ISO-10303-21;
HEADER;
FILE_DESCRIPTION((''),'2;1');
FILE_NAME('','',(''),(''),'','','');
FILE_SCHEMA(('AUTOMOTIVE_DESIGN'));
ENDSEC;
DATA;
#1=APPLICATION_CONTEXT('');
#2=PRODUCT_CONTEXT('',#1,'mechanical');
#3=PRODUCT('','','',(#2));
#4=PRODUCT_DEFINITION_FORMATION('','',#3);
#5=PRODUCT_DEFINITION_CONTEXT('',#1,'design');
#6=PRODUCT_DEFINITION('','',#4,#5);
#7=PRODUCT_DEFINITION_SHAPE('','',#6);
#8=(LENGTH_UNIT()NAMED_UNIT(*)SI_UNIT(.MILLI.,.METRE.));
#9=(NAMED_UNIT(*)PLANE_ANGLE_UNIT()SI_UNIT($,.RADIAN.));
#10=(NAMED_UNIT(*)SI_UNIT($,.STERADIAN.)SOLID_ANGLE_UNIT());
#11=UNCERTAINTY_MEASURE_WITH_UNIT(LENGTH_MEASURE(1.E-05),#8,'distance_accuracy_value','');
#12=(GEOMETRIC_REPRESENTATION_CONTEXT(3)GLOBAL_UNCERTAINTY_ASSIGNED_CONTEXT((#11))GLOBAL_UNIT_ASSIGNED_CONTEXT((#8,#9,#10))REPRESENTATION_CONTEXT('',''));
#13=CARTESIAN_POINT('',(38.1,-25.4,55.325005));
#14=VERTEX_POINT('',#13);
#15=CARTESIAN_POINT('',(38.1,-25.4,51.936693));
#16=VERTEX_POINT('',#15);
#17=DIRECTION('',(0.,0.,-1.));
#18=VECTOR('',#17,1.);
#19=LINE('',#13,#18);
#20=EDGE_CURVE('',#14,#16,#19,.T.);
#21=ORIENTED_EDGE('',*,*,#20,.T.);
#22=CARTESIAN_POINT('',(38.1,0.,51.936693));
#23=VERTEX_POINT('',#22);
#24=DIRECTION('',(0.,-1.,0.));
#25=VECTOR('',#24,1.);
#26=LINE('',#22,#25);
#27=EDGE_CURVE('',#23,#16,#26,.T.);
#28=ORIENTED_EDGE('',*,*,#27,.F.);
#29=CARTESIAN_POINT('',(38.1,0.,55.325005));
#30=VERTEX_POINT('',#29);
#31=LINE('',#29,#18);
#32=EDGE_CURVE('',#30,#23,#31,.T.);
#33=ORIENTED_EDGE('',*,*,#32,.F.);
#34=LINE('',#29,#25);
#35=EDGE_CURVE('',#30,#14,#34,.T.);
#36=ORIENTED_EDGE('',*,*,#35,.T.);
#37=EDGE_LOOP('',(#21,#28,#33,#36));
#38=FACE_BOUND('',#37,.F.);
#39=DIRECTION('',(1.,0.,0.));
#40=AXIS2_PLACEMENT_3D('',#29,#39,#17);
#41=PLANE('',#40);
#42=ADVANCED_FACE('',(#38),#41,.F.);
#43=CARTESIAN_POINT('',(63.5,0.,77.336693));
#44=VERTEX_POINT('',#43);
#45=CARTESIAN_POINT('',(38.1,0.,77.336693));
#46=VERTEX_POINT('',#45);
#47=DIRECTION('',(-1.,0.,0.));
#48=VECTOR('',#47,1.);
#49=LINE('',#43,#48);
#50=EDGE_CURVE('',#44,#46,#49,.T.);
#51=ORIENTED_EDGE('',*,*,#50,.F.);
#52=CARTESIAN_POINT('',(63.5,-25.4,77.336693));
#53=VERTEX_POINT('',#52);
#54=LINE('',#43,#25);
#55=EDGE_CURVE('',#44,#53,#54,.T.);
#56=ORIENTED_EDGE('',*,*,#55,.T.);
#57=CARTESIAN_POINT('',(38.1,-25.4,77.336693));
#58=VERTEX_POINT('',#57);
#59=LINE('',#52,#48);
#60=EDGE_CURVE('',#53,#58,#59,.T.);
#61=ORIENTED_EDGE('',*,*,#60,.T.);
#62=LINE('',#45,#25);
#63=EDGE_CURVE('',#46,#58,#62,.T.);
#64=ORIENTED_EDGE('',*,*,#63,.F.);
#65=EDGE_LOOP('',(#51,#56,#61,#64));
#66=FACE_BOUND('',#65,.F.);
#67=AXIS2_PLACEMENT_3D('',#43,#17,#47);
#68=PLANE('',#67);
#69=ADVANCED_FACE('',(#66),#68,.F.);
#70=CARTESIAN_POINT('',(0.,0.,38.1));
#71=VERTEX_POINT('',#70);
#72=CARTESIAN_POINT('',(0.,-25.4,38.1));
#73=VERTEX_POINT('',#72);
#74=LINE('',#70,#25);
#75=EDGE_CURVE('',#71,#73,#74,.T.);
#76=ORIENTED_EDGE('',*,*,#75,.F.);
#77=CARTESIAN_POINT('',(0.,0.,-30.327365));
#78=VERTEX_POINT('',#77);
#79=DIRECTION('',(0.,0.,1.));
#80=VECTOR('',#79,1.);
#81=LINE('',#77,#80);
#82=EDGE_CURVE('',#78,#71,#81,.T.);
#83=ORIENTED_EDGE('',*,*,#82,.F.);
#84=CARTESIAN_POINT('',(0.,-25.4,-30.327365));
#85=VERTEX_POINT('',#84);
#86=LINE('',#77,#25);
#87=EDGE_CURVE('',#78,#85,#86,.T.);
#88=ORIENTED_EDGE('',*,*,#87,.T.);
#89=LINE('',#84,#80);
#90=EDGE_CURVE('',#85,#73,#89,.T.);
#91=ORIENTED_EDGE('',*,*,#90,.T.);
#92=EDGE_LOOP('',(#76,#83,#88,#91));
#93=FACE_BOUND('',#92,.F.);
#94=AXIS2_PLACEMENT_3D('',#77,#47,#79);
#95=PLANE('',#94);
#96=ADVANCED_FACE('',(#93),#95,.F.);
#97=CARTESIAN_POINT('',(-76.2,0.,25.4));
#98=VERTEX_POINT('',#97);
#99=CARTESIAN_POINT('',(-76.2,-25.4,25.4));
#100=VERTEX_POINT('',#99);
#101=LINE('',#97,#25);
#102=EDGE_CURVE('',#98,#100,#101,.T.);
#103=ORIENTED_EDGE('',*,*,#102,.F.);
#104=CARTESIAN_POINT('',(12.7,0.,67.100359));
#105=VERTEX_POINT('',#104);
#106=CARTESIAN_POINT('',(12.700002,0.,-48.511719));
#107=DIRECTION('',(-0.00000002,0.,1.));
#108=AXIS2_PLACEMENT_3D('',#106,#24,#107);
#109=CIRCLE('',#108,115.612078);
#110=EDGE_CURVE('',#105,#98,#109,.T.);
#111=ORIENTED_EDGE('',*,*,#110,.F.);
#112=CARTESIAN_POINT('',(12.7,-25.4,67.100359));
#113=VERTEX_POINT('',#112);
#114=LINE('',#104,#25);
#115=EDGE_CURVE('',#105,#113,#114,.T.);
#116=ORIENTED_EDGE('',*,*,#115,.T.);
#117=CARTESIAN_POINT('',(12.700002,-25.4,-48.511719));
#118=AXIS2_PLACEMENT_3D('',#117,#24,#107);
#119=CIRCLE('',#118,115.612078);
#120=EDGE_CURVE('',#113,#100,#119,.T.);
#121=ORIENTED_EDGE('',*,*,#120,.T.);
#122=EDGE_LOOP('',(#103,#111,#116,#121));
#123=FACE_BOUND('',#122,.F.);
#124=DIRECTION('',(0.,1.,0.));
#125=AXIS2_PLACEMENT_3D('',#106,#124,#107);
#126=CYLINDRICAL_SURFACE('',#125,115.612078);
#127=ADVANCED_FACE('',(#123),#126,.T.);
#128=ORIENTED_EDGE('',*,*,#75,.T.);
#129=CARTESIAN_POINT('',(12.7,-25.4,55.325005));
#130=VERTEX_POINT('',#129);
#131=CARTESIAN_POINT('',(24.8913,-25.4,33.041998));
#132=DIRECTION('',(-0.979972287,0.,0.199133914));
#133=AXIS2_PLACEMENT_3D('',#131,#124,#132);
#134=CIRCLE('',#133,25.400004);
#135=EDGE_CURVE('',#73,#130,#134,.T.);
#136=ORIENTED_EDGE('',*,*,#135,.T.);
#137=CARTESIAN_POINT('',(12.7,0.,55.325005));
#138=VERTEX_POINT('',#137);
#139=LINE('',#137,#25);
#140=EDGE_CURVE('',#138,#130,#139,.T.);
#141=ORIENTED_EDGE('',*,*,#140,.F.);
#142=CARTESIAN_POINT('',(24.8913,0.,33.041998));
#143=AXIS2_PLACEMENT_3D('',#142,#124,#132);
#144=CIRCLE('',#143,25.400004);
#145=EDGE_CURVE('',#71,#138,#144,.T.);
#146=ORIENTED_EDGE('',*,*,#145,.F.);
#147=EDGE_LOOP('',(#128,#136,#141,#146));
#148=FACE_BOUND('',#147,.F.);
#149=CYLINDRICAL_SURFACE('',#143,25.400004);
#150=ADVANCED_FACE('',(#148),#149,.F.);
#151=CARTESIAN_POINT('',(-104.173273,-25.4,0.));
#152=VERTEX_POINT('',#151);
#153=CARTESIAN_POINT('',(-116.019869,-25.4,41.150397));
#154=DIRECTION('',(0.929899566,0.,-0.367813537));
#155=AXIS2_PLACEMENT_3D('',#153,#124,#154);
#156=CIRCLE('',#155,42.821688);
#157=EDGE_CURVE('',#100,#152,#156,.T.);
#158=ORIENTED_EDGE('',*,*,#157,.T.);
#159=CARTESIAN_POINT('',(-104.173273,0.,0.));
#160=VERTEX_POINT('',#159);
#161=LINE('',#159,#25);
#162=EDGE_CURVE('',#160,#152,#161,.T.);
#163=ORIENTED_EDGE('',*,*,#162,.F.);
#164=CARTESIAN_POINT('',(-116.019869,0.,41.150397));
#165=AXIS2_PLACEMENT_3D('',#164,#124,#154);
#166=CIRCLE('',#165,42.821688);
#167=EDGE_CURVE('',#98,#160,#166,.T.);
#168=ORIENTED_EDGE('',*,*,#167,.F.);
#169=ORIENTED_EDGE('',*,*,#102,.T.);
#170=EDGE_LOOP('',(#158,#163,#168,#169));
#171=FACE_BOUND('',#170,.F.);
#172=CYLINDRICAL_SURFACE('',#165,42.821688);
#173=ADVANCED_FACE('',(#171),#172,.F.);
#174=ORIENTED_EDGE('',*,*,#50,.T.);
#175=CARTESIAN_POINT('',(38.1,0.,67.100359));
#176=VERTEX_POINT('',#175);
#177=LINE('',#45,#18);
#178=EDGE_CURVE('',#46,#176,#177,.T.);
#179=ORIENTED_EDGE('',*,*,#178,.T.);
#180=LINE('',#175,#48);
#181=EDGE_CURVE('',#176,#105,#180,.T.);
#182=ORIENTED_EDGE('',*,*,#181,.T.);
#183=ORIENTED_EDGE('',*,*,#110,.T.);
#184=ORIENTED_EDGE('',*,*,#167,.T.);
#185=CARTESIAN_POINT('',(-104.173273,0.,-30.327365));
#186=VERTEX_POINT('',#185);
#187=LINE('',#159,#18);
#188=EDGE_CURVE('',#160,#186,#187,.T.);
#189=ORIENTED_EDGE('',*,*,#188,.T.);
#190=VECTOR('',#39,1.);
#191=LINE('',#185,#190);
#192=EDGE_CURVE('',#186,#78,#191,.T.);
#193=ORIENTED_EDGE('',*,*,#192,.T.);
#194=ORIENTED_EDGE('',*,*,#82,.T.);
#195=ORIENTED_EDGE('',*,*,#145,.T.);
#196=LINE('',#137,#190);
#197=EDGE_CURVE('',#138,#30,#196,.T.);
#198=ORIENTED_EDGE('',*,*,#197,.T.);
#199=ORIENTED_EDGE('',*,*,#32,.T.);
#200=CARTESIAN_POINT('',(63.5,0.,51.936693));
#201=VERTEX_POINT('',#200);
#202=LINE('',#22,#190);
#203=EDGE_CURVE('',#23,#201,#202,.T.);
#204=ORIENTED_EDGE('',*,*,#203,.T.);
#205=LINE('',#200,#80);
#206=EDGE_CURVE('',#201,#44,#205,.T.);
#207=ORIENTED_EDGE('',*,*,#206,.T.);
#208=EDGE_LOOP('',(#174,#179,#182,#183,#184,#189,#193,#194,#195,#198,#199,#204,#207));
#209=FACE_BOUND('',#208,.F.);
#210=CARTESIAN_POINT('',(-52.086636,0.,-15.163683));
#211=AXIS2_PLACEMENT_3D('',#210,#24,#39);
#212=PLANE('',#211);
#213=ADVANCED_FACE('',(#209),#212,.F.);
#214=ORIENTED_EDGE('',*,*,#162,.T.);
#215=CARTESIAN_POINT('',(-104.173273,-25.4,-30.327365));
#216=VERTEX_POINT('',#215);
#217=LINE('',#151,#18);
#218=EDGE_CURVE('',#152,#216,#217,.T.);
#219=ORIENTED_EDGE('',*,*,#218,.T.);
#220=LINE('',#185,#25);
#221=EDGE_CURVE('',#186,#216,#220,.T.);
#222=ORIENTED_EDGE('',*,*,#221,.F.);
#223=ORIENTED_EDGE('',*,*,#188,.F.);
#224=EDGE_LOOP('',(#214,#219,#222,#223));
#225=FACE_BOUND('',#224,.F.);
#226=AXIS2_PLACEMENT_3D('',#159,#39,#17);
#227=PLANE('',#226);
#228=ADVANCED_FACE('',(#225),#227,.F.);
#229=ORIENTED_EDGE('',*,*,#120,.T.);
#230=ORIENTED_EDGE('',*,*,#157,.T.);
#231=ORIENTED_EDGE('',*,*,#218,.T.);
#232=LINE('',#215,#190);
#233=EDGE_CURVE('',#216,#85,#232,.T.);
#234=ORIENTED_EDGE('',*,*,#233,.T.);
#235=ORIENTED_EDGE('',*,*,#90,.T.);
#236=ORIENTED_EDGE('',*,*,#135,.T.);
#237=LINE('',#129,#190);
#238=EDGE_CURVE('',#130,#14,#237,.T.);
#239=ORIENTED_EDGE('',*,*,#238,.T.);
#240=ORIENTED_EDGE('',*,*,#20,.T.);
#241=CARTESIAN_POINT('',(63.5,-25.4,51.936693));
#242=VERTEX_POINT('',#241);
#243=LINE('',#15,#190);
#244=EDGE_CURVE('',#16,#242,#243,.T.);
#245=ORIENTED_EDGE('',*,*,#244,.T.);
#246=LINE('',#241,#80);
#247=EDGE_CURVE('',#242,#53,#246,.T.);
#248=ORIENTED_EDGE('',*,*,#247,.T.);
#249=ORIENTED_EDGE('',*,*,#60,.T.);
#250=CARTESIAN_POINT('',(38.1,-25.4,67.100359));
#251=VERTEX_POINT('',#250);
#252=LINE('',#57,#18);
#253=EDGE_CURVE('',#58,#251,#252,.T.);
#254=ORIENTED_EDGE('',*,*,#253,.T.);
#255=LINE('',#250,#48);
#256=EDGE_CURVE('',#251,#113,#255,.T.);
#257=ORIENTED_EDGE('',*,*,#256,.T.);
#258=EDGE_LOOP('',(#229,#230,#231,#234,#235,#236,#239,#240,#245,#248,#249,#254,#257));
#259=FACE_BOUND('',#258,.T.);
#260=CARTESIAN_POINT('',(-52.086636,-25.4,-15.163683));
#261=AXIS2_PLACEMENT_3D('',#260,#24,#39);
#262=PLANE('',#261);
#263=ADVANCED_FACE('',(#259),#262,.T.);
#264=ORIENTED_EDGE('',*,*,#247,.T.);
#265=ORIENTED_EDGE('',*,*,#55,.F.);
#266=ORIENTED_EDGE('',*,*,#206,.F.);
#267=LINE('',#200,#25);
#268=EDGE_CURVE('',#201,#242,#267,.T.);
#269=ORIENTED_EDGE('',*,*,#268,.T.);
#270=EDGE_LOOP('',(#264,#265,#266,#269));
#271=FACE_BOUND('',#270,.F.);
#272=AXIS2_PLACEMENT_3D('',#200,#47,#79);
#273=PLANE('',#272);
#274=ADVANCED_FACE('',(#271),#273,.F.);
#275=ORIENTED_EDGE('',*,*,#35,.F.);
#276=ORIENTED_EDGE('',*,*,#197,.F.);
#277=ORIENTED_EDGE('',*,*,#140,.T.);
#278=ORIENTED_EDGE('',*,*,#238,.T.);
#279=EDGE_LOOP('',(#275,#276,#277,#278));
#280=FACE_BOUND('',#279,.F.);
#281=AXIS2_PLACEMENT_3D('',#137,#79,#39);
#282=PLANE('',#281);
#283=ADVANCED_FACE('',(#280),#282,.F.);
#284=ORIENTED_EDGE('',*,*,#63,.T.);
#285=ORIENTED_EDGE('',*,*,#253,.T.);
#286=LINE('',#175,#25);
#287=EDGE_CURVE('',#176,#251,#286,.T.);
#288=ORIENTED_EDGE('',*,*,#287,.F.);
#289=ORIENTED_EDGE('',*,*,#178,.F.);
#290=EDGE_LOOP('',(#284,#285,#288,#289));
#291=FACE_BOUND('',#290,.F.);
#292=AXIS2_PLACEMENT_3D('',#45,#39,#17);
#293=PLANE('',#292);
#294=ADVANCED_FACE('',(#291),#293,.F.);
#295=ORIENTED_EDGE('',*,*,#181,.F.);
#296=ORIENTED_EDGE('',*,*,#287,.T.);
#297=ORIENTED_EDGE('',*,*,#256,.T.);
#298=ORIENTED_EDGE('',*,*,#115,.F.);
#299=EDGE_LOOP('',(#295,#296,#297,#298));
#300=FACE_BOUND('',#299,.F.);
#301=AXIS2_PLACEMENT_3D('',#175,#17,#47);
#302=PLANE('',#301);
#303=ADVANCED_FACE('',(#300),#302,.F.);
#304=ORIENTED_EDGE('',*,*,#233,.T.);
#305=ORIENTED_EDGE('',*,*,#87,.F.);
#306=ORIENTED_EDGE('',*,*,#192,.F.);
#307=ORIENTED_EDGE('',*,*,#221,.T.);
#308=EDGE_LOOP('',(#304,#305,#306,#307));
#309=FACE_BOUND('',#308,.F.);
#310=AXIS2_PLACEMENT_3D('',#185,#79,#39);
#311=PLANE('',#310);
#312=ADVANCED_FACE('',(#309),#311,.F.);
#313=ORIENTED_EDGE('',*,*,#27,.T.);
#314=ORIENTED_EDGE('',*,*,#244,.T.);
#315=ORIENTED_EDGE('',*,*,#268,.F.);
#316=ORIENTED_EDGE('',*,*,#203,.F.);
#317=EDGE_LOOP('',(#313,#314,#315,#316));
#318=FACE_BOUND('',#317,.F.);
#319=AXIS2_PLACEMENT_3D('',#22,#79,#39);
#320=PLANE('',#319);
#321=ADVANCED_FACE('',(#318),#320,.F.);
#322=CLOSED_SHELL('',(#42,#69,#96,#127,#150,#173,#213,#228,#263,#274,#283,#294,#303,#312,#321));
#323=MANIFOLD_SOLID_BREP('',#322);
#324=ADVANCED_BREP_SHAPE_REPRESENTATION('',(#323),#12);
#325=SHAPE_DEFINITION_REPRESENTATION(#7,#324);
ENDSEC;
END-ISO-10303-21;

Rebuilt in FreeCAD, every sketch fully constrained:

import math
import FreeCAD as App
import Part
import Sketcher
from FreeCAD import Vector
Q = App.Units.Quantity

doc = App.newDocument("Part")
body = doc.addObject("PartDesign::Body", "Body")

# Sketch on XZ plane
sketch1 = doc.addObject("Sketcher::SketchObject", "Sketch")
body.addObject(sketch1)
sketch1.AttachmentSupport = (doc.XZ_Plane, [""])
sketch1.MapMode = "FlatFace"
sketch1.addGeometry(Part.LineSegment(Vector(0, -30.327365, 0), Vector(0, 38.1, 0)), False)
sketch1.addGeometry(Part.ArcOfCircle(Part.Circle(Vector(24.8913, 33.041998, 0), Vector(0, 0, 1), 25.400004), math.radians(118.683597), math.radians(168.513683)), False)
sketch1.addGeometry(Part.LineSegment(Vector(12.7, 55.325005, 0), Vector(38.1, 55.325005, 0)), False)
sketch1.addGeometry(Part.LineSegment(Vector(38.1, 55.325005, 0), Vector(38.1, 51.936693, 0)), False)
sketch1.addGeometry(Part.LineSegment(Vector(38.1, 51.936693, 0), Vector(63.5, 51.936693, 0)), False)
sketch1.addGeometry(Part.LineSegment(Vector(63.5, 51.936693, 0), Vector(63.5, 77.336693, 0)), False)
sketch1.addGeometry(Part.LineSegment(Vector(63.5, 77.336693, 0), Vector(38.1, 77.336693, 0)), False)
sketch1.addGeometry(Part.LineSegment(Vector(38.1, 77.336693, 0), Vector(38.1, 67.100359, 0)), False)
sketch1.addGeometry(Part.LineSegment(Vector(38.1, 67.100359, 0), Vector(12.7, 67.100359, 0)), False)
sketch1.addGeometry(Part.ArcOfCircle(Part.Circle(Vector(12.700002, -48.511719, 0), Vector(0, 0, 1), 115.612078), math.radians(90.000001), math.radians(140.259766)), False)
sketch1.addGeometry(Part.ArcOfCircle(Part.Circle(Vector(-116.019869, 41.150397, 0), Vector(0, 0, 1), 42.821688), math.radians(-73.939666), math.radians(-21.580835)), False)
sketch1.addGeometry(Part.LineSegment(Vector(-104.173273, 0, 0), Vector(-104.173273, -30.327365, 0)), False)
sketch1.addGeometry(Part.LineSegment(Vector(-104.173273, -30.327365, 0), Vector(0, -30.327365, 0)), False)
sketch1.addConstraint(Sketcher.Constraint("Coincident", 0, 2, 1, 2))
sketch1.addConstraint(Sketcher.Constraint("Coincident", 1, 1, 2, 1))
sketch1.addConstraint(Sketcher.Constraint("Coincident", 2, 2, 3, 1))
sketch1.addConstraint(Sketcher.Constraint("Coincident", 3, 2, 4, 1))
sketch1.addConstraint(Sketcher.Constraint("Coincident", 4, 2, 5, 1))
sketch1.addConstraint(Sketcher.Constraint("Coincident", 5, 2, 6, 1))
sketch1.addConstraint(Sketcher.Constraint("Coincident", 6, 2, 7, 1))
sketch1.addConstraint(Sketcher.Constraint("Coincident", 7, 2, 8, 1))
sketch1.addConstraint(Sketcher.Constraint("Tangent", 8, 2, 9, 1))
sketch1.addConstraint(Sketcher.Constraint("Coincident", 9, 2, 10, 2))
sketch1.addConstraint(Sketcher.Constraint("Coincident", 10, 1, 11, 1))
sketch1.addConstraint(Sketcher.Constraint("Coincident", 11, 2, 12, 1))
sketch1.addConstraint(Sketcher.Constraint("Coincident", 12, 2, 0, 1))
sketch1.addConstraint(Sketcher.Constraint("Vertical", 0))
sketch1.addConstraint(Sketcher.Constraint("Horizontal", 2))
sketch1.addConstraint(Sketcher.Constraint("Vertical", 3))
sketch1.addConstraint(Sketcher.Constraint("Horizontal", 4))
sketch1.addConstraint(Sketcher.Constraint("Vertical", 5))
sketch1.addConstraint(Sketcher.Constraint("Horizontal", 6))
sketch1.addConstraint(Sketcher.Constraint("Vertical", 7))
sketch1.addConstraint(Sketcher.Constraint("Horizontal", 8))
sketch1.addConstraint(Sketcher.Constraint("Vertical", 11))
sketch1.addConstraint(Sketcher.Constraint("Horizontal", 12))
sketch1.addConstraint(Sketcher.Constraint("PointOnObject", 0, 2, -2))
sketch1.addConstraint(Sketcher.Constraint("PointOnObject", 10, 1, -1))
sketch1.addConstraint(Sketcher.Constraint("Vertical", 3, 2, 6, 2))
sketch1.addConstraint(Sketcher.Constraint("Vertical", 1, 1, 8, 2))
sketch1.addConstraint(Sketcher.Constraint("Equal", 2, 4))
sketch1.addConstraint(Sketcher.Constraint("Equal", 8, 5))
sketch1.addConstraint(Sketcher.Constraint("Radius", 1, Q("1.0000002 in")))
sketch1.addConstraint(Sketcher.Constraint("DistanceX", 2, 1, 2, 2, Q("1 in")))
sketch1.addConstraint(Sketcher.Constraint("DistanceX", 9, 2, -1, 1, Q("3 in")))
sketch1.addConstraint(Sketcher.Constraint("DistanceY", -1, 1, 9, 2, Q("1 in")))
sketch1.addConstraint(Sketcher.Constraint("DistanceX", -1, 1, 9, 3, Q("0.5000001 in")))
sketch1.addConstraint(Sketcher.Constraint("DistanceY", -1, 1, 0, 2, Q("1.5 in")))
sketch1.addConstraint(Sketcher.Constraint("Radius", 9, Q("115.612078 mm")))
sketch1.addConstraint(Sketcher.Constraint("Radius", 10, Q("42.821688 mm")))
sketch1.addConstraint(Sketcher.Constraint("DistanceY", 3, 2, 3, 1, Q("3.388312 mm")))
sketch1.addConstraint(Sketcher.Constraint("DistanceX", -1, 1, 1, 3, Q("24.8913 mm")))
sketch1.addConstraint(Sketcher.Constraint("DistanceY", 1, 3, 10, 3, Q("8.108399 mm")))
sketch1.addConstraint(Sketcher.Constraint("DistanceY", 0, 1, 0, 2, Q("68.427365 mm")))
pad1 = doc.addObject("PartDesign::Pad", "Pad")
body.addObject(pad1)
pad1.Profile = sketch1
pad1.Length = Q("1 in")

doc.recompute()
